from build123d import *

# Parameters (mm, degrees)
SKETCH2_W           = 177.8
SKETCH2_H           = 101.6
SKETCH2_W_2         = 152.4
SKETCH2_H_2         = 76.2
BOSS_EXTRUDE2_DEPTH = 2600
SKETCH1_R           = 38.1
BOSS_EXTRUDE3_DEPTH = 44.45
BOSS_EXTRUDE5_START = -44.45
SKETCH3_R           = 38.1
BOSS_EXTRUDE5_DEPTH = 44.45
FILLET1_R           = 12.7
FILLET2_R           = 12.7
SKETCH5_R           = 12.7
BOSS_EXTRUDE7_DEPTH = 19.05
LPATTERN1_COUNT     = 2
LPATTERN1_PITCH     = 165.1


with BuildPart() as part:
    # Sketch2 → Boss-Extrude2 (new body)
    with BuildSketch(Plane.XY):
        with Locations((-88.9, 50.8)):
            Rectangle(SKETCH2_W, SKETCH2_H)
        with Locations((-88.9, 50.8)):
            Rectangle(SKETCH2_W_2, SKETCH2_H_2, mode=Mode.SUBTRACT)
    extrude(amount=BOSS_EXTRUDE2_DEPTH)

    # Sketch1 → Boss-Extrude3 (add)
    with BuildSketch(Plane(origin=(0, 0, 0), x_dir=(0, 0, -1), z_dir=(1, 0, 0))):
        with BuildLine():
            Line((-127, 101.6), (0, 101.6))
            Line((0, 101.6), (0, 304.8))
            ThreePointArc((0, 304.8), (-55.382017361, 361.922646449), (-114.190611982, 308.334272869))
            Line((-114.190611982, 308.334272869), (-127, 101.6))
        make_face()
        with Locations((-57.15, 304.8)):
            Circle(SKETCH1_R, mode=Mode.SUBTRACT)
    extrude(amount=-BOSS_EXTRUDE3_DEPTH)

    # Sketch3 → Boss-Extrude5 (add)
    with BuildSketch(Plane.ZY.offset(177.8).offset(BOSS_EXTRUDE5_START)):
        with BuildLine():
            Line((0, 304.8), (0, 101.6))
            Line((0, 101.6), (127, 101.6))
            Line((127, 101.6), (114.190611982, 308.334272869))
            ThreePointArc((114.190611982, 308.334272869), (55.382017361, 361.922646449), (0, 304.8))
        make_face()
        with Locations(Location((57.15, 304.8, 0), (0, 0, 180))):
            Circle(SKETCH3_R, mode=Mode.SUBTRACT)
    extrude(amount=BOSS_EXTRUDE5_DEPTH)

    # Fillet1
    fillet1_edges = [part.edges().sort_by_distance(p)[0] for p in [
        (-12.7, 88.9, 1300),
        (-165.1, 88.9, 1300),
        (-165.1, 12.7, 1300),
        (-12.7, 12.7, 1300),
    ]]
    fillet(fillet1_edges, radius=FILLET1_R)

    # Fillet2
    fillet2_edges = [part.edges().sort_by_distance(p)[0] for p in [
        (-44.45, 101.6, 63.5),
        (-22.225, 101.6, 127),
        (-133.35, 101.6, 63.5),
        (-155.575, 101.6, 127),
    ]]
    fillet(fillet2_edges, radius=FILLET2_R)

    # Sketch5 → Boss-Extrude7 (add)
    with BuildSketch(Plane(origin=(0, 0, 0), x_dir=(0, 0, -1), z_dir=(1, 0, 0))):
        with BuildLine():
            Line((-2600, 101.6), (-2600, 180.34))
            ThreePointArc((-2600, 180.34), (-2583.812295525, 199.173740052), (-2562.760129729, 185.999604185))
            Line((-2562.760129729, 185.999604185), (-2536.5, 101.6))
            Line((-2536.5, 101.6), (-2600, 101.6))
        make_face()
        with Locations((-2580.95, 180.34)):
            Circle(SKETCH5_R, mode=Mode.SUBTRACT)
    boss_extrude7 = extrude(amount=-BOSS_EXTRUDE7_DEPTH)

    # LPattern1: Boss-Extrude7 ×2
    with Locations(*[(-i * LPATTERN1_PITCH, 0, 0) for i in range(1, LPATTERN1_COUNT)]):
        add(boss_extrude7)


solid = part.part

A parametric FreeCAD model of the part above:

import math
import FreeCAD as App
import Part
import Sketcher
Q = App.Units.Quantity


def edges_at(feature, points):
    """Names of the edges that pass closest to the given points."""
    edges = feature.Shape.Edges
    near = lambda p: min(range(len(edges)), key=lambda i: edges[i].distToShape(Part.Vertex(*p))[0])
    return sorted({f"Edge{near(p) + 1}" for p in points})


def add_polygon(sketch, points):
    """Adds a closed chain of lines whose ends are joined by coincident constraints."""
    first, n = sketch.GeometryCount, len(points)
    for a, b in zip(points, points[1:] + points[:1]):
        sketch.addGeometry(Part.LineSegment(App.Vector(*a, 0), App.Vector(*b, 0)), False)
    for i in range(n):
        sketch.addConstraint(Sketcher.Constraint("Coincident", first + i, 2, first + (i + 1) % n, 1))

doc = App.newDocument("Part")
body = doc.addObject("PartDesign::Body", "Body")

# Sketch on XY plane
sketch1 = doc.addObject("Sketcher::SketchObject", "Sketch")
body.addObject(sketch1)
sketch1.AttachmentSupport = (doc.XY_Plane, [""])
sketch1.MapMode = "FlatFace"
add_polygon(sketch1, [(-178, 102), (-178, 0), (0, 0), (0, 102)])  # lines 0-3
add_polygon(sketch1, [(-13, 13), (-165, 13), (-165, 89), (-13, 89)])  # lines 4-7
sketch1.addConstraint([
    Sketcher.Constraint("Vertical", 0),
    Sketcher.Constraint("Horizontal", 1),
    Sketcher.Constraint("Vertical", 2),
    Sketcher.Constraint("Horizontal", 3),
    Sketcher.Constraint("Horizontal", 4),
    Sketcher.Constraint("Vertical", 5),
    Sketcher.Constraint("Horizontal", 6),
    Sketcher.Constraint("Vertical", 7),
    Sketcher.Constraint("Coincident", 1, 2, -1, 1),
    Sketcher.Constraint("DistanceX", 1, 1, 1, 2, Q("7 in")),
    Sketcher.Constraint("DistanceX", 4, 2, 4, 1, Q("6 in")),
    Sketcher.Constraint("DistanceY", 0, 2, 0, 1, Q("4 in")),
    Sketcher.Constraint("DistanceY", 5, 1, 5, 2, Q("3 in")),
    Sketcher.Constraint("DistanceX", 4, 2, -1, 1, Q("6.5 in")),
    Sketcher.Constraint("DistanceY", -1, 1, 4, 2, Q("0.5 in")),
])
pad1 = doc.addObject("PartDesign::Pad", "Pad")
body.addObject(pad1)
pad1.Profile = sketch1
pad1.Length = 2600

# Sketch on YZ plane
sketch2 = doc.addObject("Sketcher::SketchObject", "Sketch001")
body.addObject(sketch2)
sketch2.AttachmentSupport = (doc.YZ_Plane, [""])
sketch2.MapMode = "FlatFace"
sketch2.addGeometry([
    Part.LineSegment(App.Vector(102, 127, 0), App.Vector(102, 0, 0)),  # 0
    Part.LineSegment(App.Vector(102, 0, 0), App.Vector(305, 0, 0)),  # 1
    Part.ArcOfCircle(Part.Circle(App.Vector(305, 57, 0), App.Vector(0, 0, 1), 57), math.radians(-90), math.radians(86)),  # 2
    Part.LineSegment(App.Vector(308, 114, 0), App.Vector(102, 127, 0)),  # 3
    Part.Circle(App.Vector(305, 57, 0), App.Vector(0, 0, 1), 38),  # 4
], False)
sketch2.addConstraint([
    Sketcher.Constraint("Coincident", 0, 2, 1, 1),
    Sketcher.Constraint("Tangent", 1, 2, 2, 1),
    Sketcher.Constraint("Tangent", 2, 2, 3, 1),
    Sketcher.Constraint("Coincident", 3, 2, 0, 1),
    Sketcher.Constraint("Vertical", 0),
    Sketcher.Constraint("Horizontal", 1),
    Sketcher.Constraint("Coincident", 4, 3, 2, 3),
    Sketcher.Constraint("PointOnObject", 0, 2, -1),
    Sketcher.Constraint("Diameter", 4, Q("3 in")),
    Sketcher.Constraint("DistanceX", 1, 1, 1, 2, Q("8 in")),
    Sketcher.Constraint("DistanceY", 0, 2, 0, 1, Q("5 in")),
    Sketcher.Constraint("Radius", 2, Q("2.25 in")),
    Sketcher.Constraint("DistanceX", -1, 1, 2, 3, Q("12 in")),
])
pad2 = doc.addObject("PartDesign::Pad", "Pad001")
body.addObject(pad2)
pad2.Profile = sketch2
pad2.Length = Q("1.75 in")
pad2.Reversed = True

# Sketch on YZ plane
sketch3 = doc.addObject("Sketcher::SketchObject", "Sketch002")
body.addObject(sketch3)
sketch3.AttachmentSupport = (doc.YZ_Plane, [""])
sketch3.MapMode = "FlatFace"
sketch3.AttachmentOffset = App.Placement(App.Vector(0, 0, -5.25 * 25.4), App.Rotation())
sketch3.addGeometry([
    Part.LineSegment(App.Vector(305, 0, 0), App.Vector(102, 0, 0)),  # 0
    Part.LineSegment(App.Vector(102, 0, 0), App.Vector(102, 127, 0)),  # 1
    Part.LineSegment(App.Vector(102, 127, 0), App.Vector(308, 114, 0)),  # 2
    Part.ArcOfCircle(Part.Circle(App.Vector(305, 57, 0), App.Vector(0, 0, 1), 57), math.radians(-90), math.radians(86)),  # 3
    Part.Circle(App.Vector(305, 57, 0), App.Vector(0, 0, 1), 38),  # 4
], False)
sketch3.addConstraint([
    Sketcher.Constraint("Coincident", 0, 2, 1, 1),
    Sketcher.Constraint("Coincident", 1, 2, 2, 1),
    Sketcher.Constraint("Tangent", 2, 2, 3, 2),
    Sketcher.Constraint("Tangent", 3, 1, 0, 1),
    Sketcher.Constraint("Horizontal", 0),
    Sketcher.Constraint("Vertical", 1),
    Sketcher.Constraint("Coincident", 4, 3, 3, 3),
    Sketcher.Constraint("PointOnObject", 0, 2, -1),
    Sketcher.Constraint("Diameter", 4, Q("3 in")),
    Sketcher.Constraint("DistanceX", 0, 2, 0, 1, Q("8 in")),
    Sketcher.Constraint("DistanceY", 1, 1, 1, 2, Q("5 in")),
    Sketcher.Constraint("Radius", 3, Q("2.25 in")),
    Sketcher.Constraint("DistanceX", -1, 1, 3, 3, Q("12 in")),
])
pad3 = doc.addObject("PartDesign::Pad", "Pad002")
body.addObject(pad3)
pad3.Profile = sketch3
pad3.Length = Q("1.75 in")
pad3.Reversed = True
doc.recompute()

fillet = doc.addObject("PartDesign::Fillet", "Fillet")
body.addObject(fillet)
fillet.Base = (pad3, edges_at(pad3, [
    (-12.7, 88.9, 1300),
    (-165.1, 88.9, 1300),
    (-165.1, 12.7, 1300),
    (-12.7, 12.7, 1300),
]))
fillet.Radius = Q("0.5 in")
doc.recompute()

fillet2 = doc.addObject("PartDesign::Fillet", "Fillet001")
body.addObject(fillet2)
fillet2.Base = (fillet, edges_at(fillet, [
    (-44.45, 101.6, 63.5),
    (-22.225, 101.6, 127),
    (-133.35, 101.6, 63.5),
    (-155.575, 101.6, 127),
]))
fillet2.Radius = Q("0.5 in")

# Sketch on YZ plane
sketch4 = doc.addObject("Sketcher::SketchObject", "Sketch003")
body.addObject(sketch4)
sketch4.AttachmentSupport = (doc.YZ_Plane, [""])
sketch4.MapMode = "FlatFace"
sketch4.addGeometry([
    Part.LineSegment(App.Vector(180, 2600, 0), App.Vector(102, 2600, 0)),  # 0
    Part.LineSegment(App.Vector(102, 2600, 0), App.Vector(102, 2536, 0)),  # 1
    Part.LineSegment(App.Vector(102, 2536, 0), App.Vector(186, 2563, 0)),  # 2
    Part.ArcOfCircle(Part.Circle(App.Vector(180, 2581, 0), App.Vector(0, 0, 1), 19), math.radians(-73), math.radians(90)),  # 3
    Part.Circle(App.Vector(180, 2581, 0), App.Vector(0, 0, 1), 13),  # 4
], False)
sketch4.addConstraint([
    Sketcher.Constraint("Coincident", 0, 2, 1, 1),
    Sketcher.Constraint("Coincident", 1, 2, 2, 1),
    Sketcher.Constraint("Tangent", 2, 2, 3, 1),
    Sketcher.Constraint("Tangent", 3, 2, 0, 1),
    Sketcher.Constraint("Horizontal", 0),
    Sketcher.Constraint("Vertical", 1),
    Sketcher.Constraint("Coincident", 4, 3, 3, 3),
    Sketcher.Constraint("Diameter", 4, Q("1 in")),
    Sketcher.Constraint("Radius", 3, Q("0.75 in")),
    Sketcher.Constraint("DistanceX", 0, 2, 0, 1, Q("3.1 in")),
    Sketcher.Constraint("DistanceY", 1, 2, 1, 1, Q("2.5 in")),
    Sketcher.Constraint("DistanceX", -1, 1, 0, 2, Q("4 in")),
    Sketcher.Constraint("DistanceY", -1, 1, 3, 3, Q("2580.95 mm")),
])
pad4 = doc.addObject("PartDesign::Pad", "Pad003")
body.addObject(pad4)
pad4.Profile = sketch4
pad4.Length = Q("0.75 in")
pad4.Reversed = True
doc.recompute()

linearpattern = doc.addObject("PartDesign::LinearPattern", "LinearPattern")
body.addObject(linearpattern)
linearpattern.Originals = [pad4]
linearpattern.Direction = (doc.X_Axis, [""])
linearpattern.Mode = "offset"
linearpattern.Offset = Q("6.5 in")
linearpattern.Occurrences = 2
linearpattern.Reversed = True
body.Tip = linearpattern

doc.recompute()
